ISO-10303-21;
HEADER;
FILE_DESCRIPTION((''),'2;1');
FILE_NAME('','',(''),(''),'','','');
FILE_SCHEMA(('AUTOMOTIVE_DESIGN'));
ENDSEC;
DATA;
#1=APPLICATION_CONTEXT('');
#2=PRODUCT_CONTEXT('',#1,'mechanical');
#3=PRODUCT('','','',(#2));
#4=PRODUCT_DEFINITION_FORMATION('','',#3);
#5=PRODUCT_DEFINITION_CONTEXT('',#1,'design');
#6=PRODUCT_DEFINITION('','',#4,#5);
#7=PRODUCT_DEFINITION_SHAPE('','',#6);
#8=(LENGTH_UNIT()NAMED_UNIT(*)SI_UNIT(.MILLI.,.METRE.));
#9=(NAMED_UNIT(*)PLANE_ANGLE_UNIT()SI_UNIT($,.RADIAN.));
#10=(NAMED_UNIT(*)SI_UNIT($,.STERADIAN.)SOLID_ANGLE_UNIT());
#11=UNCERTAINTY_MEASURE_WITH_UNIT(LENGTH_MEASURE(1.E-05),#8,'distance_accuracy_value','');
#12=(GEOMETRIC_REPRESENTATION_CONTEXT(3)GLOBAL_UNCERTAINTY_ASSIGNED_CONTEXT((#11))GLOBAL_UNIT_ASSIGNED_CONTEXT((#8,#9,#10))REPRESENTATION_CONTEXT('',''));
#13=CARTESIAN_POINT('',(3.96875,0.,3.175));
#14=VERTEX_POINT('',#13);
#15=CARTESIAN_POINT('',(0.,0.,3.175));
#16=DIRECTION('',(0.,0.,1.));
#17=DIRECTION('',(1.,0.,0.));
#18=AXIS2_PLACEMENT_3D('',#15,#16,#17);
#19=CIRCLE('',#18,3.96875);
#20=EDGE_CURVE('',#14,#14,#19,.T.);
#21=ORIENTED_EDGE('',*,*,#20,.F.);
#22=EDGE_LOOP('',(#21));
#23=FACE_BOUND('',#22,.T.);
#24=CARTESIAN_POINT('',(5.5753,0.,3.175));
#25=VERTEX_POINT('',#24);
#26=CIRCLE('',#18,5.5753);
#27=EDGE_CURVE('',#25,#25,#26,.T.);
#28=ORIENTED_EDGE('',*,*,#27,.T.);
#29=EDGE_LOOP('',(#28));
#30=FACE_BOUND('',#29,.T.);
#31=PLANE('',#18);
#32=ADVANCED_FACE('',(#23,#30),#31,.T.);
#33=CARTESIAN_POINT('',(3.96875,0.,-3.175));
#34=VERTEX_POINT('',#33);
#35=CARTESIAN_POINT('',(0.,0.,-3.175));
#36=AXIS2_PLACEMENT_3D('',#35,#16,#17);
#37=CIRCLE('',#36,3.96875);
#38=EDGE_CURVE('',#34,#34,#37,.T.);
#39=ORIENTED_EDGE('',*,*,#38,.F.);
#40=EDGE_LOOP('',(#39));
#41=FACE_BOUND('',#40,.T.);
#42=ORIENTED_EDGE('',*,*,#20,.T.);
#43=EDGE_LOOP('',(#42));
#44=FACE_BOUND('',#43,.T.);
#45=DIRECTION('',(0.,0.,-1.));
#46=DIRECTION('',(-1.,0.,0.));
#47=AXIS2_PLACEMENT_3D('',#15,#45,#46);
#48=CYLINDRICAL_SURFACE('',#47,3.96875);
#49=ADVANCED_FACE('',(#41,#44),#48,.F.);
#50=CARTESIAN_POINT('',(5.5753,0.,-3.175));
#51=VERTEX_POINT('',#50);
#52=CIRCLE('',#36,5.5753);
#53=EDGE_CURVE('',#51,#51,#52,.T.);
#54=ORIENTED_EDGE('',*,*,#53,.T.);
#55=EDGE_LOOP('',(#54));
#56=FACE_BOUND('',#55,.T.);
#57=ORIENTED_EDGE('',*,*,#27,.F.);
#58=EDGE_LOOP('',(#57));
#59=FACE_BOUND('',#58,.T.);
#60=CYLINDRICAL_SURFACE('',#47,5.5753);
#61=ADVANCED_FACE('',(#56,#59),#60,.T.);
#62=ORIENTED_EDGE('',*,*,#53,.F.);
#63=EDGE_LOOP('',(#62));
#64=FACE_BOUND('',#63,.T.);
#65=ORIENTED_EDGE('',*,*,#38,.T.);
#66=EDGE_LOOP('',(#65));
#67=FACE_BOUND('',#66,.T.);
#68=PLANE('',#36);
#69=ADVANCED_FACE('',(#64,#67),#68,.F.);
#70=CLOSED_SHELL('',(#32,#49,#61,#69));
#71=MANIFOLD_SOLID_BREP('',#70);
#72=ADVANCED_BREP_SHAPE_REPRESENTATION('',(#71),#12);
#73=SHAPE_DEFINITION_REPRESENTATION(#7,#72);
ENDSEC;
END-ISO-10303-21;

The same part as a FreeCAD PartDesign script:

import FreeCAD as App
import Part
import Sketcher
from FreeCAD import Vector
Q = App.Units.Quantity

doc = App.newDocument("Part")
params = doc.addObject("Spreadsheet::Sheet", "Params")
for row, (alias, value) in enumerate([
    ("sketch1_diameter", "0.439 in"),
    ("sketch1_diameter2", "0.3125 in"),
    ("pad1_length", "0.25 in"),
], start=1):
    params.set(f"A{row}", alias)
    params.set(f"B{row}", "=" + value)
    params.setAlias(f"B{row}", alias)

body = doc.addObject("PartDesign::Body", "Body")

# Sketch on XY plane
sketch1 = body.newObject("Sketcher::SketchObject", "Sketch")
sketch1.AttachmentSupport = (doc.getObject("XY_Plane"), [""])
sketch1.MapMode = "FlatFace"
sketch1.addGeometry(Part.Circle(Vector(0, 0, 0), Vector(0, 0, 1), 5.6), False)
sketch1.addGeometry(Part.Circle(Vector(0, 0, 0), Vector(0, 0, 1), 4), False)
sketch1.addConstraint(Sketcher.Constraint("Coincident", 0, 3, -1, 1))
sketch1.addConstraint(Sketcher.Constraint("Coincident", 1, 3, -1, 1))
sketch1.addConstraint(Sketcher.Constraint("Diameter", 0, Q("0.439 in")))
sketch1.addConstraint(Sketcher.Constraint("Diameter", 1, Q("0.3125 in")))
sketch1.setExpression("Constraints[2]", "Params.sketch1_diameter")
sketch1.setExpression("Constraints[3]", "Params.sketch1_diameter2")
pad1 = body.newObject("PartDesign::Pad", "Pad")
pad1.Profile = sketch1
pad1.setExpression("Length", "Params.pad1_length")
pad1.Midplane = True

doc.recompute()
